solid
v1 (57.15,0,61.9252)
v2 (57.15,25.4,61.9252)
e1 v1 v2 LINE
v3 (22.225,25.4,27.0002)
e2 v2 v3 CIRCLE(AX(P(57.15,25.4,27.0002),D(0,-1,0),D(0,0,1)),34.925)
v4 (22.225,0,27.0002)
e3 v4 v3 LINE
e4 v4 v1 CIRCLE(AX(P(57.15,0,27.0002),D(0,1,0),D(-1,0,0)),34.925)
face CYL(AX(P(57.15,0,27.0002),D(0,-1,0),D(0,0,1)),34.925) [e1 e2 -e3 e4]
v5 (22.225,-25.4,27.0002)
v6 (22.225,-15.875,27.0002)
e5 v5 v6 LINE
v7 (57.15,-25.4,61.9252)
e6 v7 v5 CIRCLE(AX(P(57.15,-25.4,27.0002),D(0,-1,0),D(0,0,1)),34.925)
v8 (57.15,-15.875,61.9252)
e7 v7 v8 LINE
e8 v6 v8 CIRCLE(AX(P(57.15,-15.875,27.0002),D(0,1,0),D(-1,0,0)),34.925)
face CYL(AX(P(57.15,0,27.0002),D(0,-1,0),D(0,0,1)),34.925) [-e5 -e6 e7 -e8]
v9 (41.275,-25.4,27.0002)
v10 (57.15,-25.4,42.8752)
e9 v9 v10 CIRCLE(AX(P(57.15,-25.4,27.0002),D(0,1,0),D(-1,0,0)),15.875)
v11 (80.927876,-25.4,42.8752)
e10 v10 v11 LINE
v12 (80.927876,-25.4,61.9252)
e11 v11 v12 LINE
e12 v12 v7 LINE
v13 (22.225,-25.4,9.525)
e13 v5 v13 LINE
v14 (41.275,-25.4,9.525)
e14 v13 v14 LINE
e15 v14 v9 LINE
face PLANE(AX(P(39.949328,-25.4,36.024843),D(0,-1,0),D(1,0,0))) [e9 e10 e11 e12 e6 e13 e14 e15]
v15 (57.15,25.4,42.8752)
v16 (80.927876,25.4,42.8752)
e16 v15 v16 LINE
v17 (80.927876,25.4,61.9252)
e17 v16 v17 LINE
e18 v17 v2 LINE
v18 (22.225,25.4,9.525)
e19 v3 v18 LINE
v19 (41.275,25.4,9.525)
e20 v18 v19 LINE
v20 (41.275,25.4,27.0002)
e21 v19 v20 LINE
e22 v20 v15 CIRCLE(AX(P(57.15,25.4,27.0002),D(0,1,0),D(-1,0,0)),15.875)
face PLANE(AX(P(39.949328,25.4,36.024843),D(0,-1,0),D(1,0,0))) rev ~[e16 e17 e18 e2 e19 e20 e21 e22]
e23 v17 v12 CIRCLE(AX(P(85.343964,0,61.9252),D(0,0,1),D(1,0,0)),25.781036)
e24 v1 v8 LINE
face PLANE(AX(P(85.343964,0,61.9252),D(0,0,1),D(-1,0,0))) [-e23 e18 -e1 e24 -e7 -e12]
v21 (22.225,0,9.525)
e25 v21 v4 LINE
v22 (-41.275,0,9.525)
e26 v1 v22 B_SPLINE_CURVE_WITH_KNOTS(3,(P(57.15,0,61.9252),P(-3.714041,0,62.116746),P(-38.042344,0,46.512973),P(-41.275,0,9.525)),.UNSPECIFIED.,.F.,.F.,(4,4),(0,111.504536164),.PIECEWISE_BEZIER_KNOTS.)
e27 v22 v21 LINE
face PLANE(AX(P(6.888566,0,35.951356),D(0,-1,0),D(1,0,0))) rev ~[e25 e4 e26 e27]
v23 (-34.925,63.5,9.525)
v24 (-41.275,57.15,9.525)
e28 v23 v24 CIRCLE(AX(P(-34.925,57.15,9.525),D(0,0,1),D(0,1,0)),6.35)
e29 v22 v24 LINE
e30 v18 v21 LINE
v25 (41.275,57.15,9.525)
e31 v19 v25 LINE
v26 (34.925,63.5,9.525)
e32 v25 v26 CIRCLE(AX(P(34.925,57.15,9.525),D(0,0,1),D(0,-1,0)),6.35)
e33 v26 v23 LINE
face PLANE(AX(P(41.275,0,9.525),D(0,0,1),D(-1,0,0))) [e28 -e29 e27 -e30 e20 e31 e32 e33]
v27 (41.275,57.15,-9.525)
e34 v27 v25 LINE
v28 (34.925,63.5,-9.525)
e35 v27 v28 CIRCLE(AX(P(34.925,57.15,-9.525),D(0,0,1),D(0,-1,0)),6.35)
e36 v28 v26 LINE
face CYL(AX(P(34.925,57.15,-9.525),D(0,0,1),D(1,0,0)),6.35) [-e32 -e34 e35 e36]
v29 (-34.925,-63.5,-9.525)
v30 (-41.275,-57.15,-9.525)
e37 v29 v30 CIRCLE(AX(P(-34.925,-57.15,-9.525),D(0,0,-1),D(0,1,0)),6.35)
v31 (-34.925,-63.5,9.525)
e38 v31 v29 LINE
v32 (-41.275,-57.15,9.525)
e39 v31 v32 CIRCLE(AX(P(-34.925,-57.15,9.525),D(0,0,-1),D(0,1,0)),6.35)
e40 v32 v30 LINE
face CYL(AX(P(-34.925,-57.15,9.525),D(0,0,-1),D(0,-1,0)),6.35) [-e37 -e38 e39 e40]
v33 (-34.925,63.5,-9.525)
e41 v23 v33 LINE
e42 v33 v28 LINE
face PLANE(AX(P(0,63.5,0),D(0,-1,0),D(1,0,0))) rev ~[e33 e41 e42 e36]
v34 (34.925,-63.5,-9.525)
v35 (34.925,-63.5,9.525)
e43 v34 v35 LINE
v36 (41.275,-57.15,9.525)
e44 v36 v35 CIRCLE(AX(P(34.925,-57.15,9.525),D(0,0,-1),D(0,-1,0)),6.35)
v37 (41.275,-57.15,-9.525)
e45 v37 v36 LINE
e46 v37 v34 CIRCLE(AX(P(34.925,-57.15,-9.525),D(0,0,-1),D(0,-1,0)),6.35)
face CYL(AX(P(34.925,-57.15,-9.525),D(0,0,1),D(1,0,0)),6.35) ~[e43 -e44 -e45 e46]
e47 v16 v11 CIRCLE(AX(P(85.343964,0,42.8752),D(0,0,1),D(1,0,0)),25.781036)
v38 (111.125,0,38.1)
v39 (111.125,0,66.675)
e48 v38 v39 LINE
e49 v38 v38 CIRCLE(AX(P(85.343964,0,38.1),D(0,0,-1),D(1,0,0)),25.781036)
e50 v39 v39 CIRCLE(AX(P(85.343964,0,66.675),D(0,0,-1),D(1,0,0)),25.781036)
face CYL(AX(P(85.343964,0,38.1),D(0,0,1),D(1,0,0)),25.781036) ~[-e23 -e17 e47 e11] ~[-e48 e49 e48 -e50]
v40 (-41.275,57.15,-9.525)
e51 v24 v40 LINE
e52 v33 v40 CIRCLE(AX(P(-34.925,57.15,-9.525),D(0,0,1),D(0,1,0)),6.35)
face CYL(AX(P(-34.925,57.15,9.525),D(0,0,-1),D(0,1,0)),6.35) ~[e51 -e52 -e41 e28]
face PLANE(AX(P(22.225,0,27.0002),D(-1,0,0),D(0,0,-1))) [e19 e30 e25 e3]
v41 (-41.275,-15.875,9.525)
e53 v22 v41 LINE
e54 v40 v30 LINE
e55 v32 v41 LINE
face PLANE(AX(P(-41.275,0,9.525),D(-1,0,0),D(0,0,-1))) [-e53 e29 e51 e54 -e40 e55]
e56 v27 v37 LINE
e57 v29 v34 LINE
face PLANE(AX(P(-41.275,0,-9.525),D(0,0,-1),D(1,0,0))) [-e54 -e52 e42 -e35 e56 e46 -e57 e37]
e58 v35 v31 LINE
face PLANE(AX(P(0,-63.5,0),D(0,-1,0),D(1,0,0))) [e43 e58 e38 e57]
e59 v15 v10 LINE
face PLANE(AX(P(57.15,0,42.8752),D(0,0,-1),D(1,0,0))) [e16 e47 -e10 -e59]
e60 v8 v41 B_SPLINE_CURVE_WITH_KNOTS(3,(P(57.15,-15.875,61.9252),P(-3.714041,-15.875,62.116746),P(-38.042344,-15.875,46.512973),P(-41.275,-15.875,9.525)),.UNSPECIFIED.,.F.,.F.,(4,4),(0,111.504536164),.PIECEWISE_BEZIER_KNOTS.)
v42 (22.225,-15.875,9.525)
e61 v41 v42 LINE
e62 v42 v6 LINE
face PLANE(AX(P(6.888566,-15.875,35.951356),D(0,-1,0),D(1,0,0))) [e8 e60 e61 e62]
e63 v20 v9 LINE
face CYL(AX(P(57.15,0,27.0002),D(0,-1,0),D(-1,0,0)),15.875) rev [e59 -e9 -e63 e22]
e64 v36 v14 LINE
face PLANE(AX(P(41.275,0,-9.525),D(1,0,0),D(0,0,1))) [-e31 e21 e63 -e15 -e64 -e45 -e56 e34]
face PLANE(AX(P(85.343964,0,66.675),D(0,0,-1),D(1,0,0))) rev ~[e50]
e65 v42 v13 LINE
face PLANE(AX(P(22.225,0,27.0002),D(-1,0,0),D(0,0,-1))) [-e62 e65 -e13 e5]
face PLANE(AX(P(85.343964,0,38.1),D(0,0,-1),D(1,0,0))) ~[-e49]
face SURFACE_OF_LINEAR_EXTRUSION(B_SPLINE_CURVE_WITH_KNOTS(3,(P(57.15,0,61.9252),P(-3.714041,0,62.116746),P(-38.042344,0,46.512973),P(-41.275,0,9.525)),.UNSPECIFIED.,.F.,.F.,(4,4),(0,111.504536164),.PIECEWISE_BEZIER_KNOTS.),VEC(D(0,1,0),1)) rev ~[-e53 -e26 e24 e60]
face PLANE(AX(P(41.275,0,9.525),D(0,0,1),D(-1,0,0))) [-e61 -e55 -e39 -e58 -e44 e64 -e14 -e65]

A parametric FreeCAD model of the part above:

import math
import FreeCAD as App
import Part
import Sketcher

V = App.Vector
Q = App.Units.Quantity


def edges_at(feature, points):
    """Names of the edges that pass closest to the given points."""
    edges = feature.Shape.Edges
    near = lambda p: min(range(len(edges)), key=lambda i: edges[i].distToShape(Part.Vertex(*p))[0])
    return sorted({f"Edge{near(p) + 1}" for p in points})


def add_polygon(sketch, points):
    """Adds a closed chain of lines whose ends are joined by coincident constraints."""
    first, n = sketch.GeometryCount, len(points)
    for a, b in zip(points, points[1:] + points[:1]):
        sketch.addGeometry(Part.LineSegment(App.Vector(*a, 0), App.Vector(*b, 0)), False)
    for i in range(n):
        sketch.addConstraint(Sketcher.Constraint("Coincident", first + i, 2, first + (i + 1) % n, 1))

doc = App.newDocument("Part")
body = doc.addObject("PartDesign::Body", "Body")

# Sketch on XZ plane
sketch1 = doc.addObject("Sketcher::SketchObject", "Sketch")
body.addObject(sketch1)
sketch1.AttachmentSupport = (doc.XZ_Plane, [""])
sketch1.MapMode = "FlatFace"
add_polygon(sketch1, [(-41, 10), (-41, -10), (41, -10), (41, 10)])  # lines 0-3
sketch1.addConstraint(Sketcher.Constraint("Vertical", 0))
sketch1.addConstraint(Sketcher.Constraint("Horizontal", 1))
sketch1.addConstraint(Sketcher.Constraint("Vertical", 2))
sketch1.addConstraint(Sketcher.Constraint("Horizontal", 3))
sketch1.addConstraint(Sketcher.Constraint("Symmetric", 0, 2, 2, 2, -1, 1))
sketch1.addConstraint(Sketcher.Constraint("DistanceX", 1, 1, 1, 2, Q("3.25 in")))
sketch1.addConstraint(Sketcher.Constraint("DistanceY", 0, 2, 0, 1, Q("0.75 in")))
pad1 = doc.addObject("PartDesign::Pad", "Pad")
body.addObject(pad1)
pad1.Profile = sketch1
pad1.Length = Q("5 in")
pad1.Midplane = True

# Sketch on XZ plane
sketch2 = doc.addObject("Sketcher::SketchObject", "Sketch001")
body.addObject(sketch2)
sketch2.AttachmentSupport = (doc.XZ_Plane, [""])
sketch2.MapMode = "FlatFace"
sketch2.addGeometry(Part.LineSegment(V(22, 27, 0), V(22, 10, 0)), False)
sketch2.addGeometry(Part.LineSegment(V(22, 10, 0), V(41, 10, 0)), False)
sketch2.addGeometry(Part.LineSegment(V(41, 10, 0), V(41, 27, 0)), False)
sketch2.addGeometry(Part.ArcOfCircle(Part.Circle(V(57, 27, 0), V(0, 0, 1), 16), math.radians(90), math.radians(180)), False)
sketch2.addGeometry(Part.LineSegment(V(57, 43, 0), V(85, 43, 0)), False)
sketch2.addGeometry(Part.LineSegment(V(85, 43, 0), V(85, 62, 0)), False)
sketch2.addGeometry(Part.LineSegment(V(85, 62, 0), V(57, 62, 0)), False)
sketch2.addGeometry(Part.ArcOfCircle(Part.Circle(V(57, 27, 0), V(0, 0, 1), 35), math.radians(90), math.radians(180)), False)
sketch2.addConstraint(Sketcher.Constraint("Coincident", 0, 2, 1, 1))
sketch2.addConstraint(Sketcher.Constraint("Coincident", 1, 2, 2, 1))
sketch2.addConstraint(Sketcher.Constraint("Tangent", 2, 2, 3, 2))
sketch2.addConstraint(Sketcher.Constraint("Tangent", 3, 1, 4, 1))
sketch2.addConstraint(Sketcher.Constraint("Coincident", 4, 2, 5, 1))
sketch2.addConstraint(Sketcher.Constraint("Coincident", 5, 2, 6, 1))
sketch2.addConstraint(Sketcher.Constraint("Tangent", 6, 2, 7, 1))
sketch2.addConstraint(Sketcher.Constraint("Tangent", 7, 2, 0, 1))
sketch2.addConstraint(Sketcher.Constraint("Vertical", 0))
sketch2.addConstraint(Sketcher.Constraint("Horizontal", 1))
sketch2.addConstraint(Sketcher.Constraint("Vertical", 2))
sketch2.addConstraint(Sketcher.Constraint("Horizontal", 4))
sketch2.addConstraint(Sketcher.Constraint("Vertical", 5))
sketch2.addConstraint(Sketcher.Constraint("Horizontal", 6))
sketch2.addConstraint(Sketcher.Constraint("Coincident", 7, 3, 3, 3))
sketch2.addConstraint(Sketcher.Constraint("Radius", 3, Q("0.625 in")))
sketch2.addConstraint(Sketcher.Constraint("Radius", 7, Q("1.375 in")))
sketch2.addConstraint(Sketcher.Constraint("DistanceY", 0, 2, 0, 1, Q("0.688 in")))
sketch2.addConstraint(Sketcher.Constraint("DistanceX", -1, 1, 3, 3, Q("2.25 in")))
sketch2.addConstraint(Sketcher.Constraint("DistanceY", -1, 1, 3, 3, Q("1.063 in")))
sketch2.addConstraint(Sketcher.Constraint("DistanceX", 4, 1, 4, 2, 28.193964))
pad2 = doc.addObject("PartDesign::Pad", "Pad001")
body.addObject(pad2)
pad2.Profile = sketch2
pad2.Length = Q("2 in")
pad2.Midplane = True

# Sketch on XZ plane
sketch3 = doc.addObject("Sketcher::SketchObject", "Sketch002")
body.addObject(sketch3)
sketch3.AttachmentSupport = (doc.XZ_Plane, [""])
sketch3.MapMode = "FlatFace"
sketch3.addGeometry(Part.BSplineCurve([V(57.15, 61.9252, 0), V(-3.714041, 62.116746, 0), V(-38.042344, 46.512973, 0), V(-41.275, 9.525, 0)], [4, 4], [0, 111.504536164], False, 3, [1, 1, 1, 1], False), False)
sketch3.addGeometry(Part.LineSegment(V(-41.275, 9.525, 0), V(22.225, 9.525, 0)), False)
sketch3.addGeometry(Part.LineSegment(V(22.225, 9.525, 0), V(22.225, 27.0002, 0)), False)
sketch3.addGeometry(Part.ArcOfCircle(Part.Circle(V(57.15, 27.0002, 0), V(0, 0, 1), 34.925), math.radians(90), math.radians(180)), False)
sketch3.addConstraint(Sketcher.Constraint("Block", 0))
sketch3.addConstraint(Sketcher.Constraint("Coincident", 0, 2, 1, 1))
sketch3.addConstraint(Sketcher.Constraint("Coincident", 1, 2, 2, 1))
sketch3.addConstraint(Sketcher.Constraint("Tangent", 2, 2, 3, 2))
sketch3.addConstraint(Sketcher.Constraint("Coincident", 3, 1, 0, 1))
sketch3.addConstraint(Sketcher.Constraint("Horizontal", 1))
sketch3.addConstraint(Sketcher.Constraint("Vertical", 2))
sketch3.addConstraint(Sketcher.Constraint("DistanceX", 1, 1, 1, 2, Q("2.5 in")))
sketch3.addConstraint(Sketcher.Constraint("Radius", 3, Q("1.375 in")))
pad3 = doc.addObject("PartDesign::Pad", "Pad002")
body.addObject(pad3)
pad3.Profile = sketch3
pad3.Length = Q("0.625 in")

# Sketch on XZ plane
sketch4 = doc.addObject("Sketcher::SketchObject", "Sketch003")
body.addObject(sketch4)
sketch4.AttachmentSupport = (doc.XZ_Plane, [""])
sketch4.MapMode = "FlatFace"
add_polygon(sketch4, [(85, 67), (85, 38), (111, 38), (111, 67)])  # lines 0-3
sketch4.addGeometry(Part.LineSegment(V(85, 67, 0), V(85, 38, 0)), True)  # axis
sketch4.addConstraint(Sketcher.Constraint("Vertical", 0))
sketch4.addConstraint(Sketcher.Constraint("Horizontal", 1))
sketch4.addConstraint(Sketcher.Constraint("Vertical", 2))
sketch4.addConstraint(Sketcher.Constraint("Horizontal", 3))
sketch4.addConstraint(Sketcher.Constraint("Vertical", 4))
sketch4.addConstraint(Sketcher.Constraint("Coincident", 4, 1, 3, 2))
sketch4.addConstraint(Sketcher.Constraint("Horizontal", 1, 2, 4, 2))
sketch4.addConstraint(Sketcher.Constraint("DistanceY", -1, 1, 0, 2, Q("1.5 in")))
sketch4.addConstraint(Sketcher.Constraint("DistanceY", 0, 2, 0, 1, Q("1.125 in")))
sketch4.addConstraint(Sketcher.Constraint("DistanceX", -1, 1, 1, 2, Q("4.375 in")))
sketch4.addConstraint(Sketcher.Constraint("DistanceX", 1, 1, 1, 2, 25.781036))
revolution = doc.addObject("PartDesign::Revolution", "Revolution")
body.addObject(revolution)
revolution.Profile = sketch4
revolution.ReferenceAxis = (sketch4, ["Axis0"])
revolution.Angle = 360
doc.recompute()

fillet = doc.addObject("PartDesign::Fillet", "Fillet")
body.addObject(fillet)
fillet.Base = (revolution, edges_at(revolution, [
    (-41.275, 63.5, 0),
    (41.275, 63.5, 0),
    (41.275, -63.5, 0),
    (-41.275, -63.5, 0),
]))
fillet.Radius = Q("0.25 in")

doc.recompute()
